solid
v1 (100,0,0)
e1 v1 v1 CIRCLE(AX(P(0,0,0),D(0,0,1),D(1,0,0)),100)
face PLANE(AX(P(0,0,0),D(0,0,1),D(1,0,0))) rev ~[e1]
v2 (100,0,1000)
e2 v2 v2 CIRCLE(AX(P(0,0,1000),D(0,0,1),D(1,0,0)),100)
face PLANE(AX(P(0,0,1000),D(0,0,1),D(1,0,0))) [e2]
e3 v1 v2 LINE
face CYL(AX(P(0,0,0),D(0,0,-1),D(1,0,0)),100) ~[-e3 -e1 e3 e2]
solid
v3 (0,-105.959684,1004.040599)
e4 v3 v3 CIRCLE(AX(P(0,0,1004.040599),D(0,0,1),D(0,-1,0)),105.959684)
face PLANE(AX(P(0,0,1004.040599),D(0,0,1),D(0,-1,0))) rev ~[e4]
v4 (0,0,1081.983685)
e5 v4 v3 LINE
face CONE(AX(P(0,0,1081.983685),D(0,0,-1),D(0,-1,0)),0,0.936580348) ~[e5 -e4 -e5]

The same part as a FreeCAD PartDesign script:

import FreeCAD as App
import Part
import Sketcher
Q = App.Units.Quantity


def add_polygon(sketch, points):
    """Adds a closed chain of lines whose ends are joined by coincident constraints."""
    first, n = sketch.GeometryCount, len(points)
    for a, b in zip(points, points[1:] + points[:1]):
        sketch.addGeometry(Part.LineSegment(App.Vector(*a, 0), App.Vector(*b, 0)), False)
    for i in range(n):
        sketch.addConstraint(Sketcher.Constraint("Coincident", first + i, 2, first + (i + 1) % n, 1))

doc = App.newDocument("Part")
body = doc.addObject("PartDesign::Body", "Body")

# Sketch on XY plane
sketch1 = body.newObject("Sketcher::SketchObject", "Sketch")
sketch1.AttachmentSupport = (doc.getObject("XY_Plane"), [""])
sketch1.MapMode = "FlatFace"
sketch1.addGeometry(Part.Circle(App.Vector(0, 0, 0), App.Vector(0, 0, 1), 100), False)
sketch1.addConstraint(Sketcher.Constraint("Coincident", 0, 3, -1, 1))
sketch1.addConstraint(Sketcher.Constraint("Diameter", 0, Q("200 mm")))
pad1 = body.newObject("PartDesign::Pad", "Pad")
pad1.Profile = sketch1
pad1.Length = 1000
body2 = doc.addObject("PartDesign::Body", "Body001")

# Sketch on YZ plane
sketch2 = body2.newObject("Sketcher::SketchObject", "Sketch001")
sketch2.AttachmentSupport = (doc.getObject("YZ_Plane001"), [""])
sketch2.MapMode = "FlatFace"
add_polygon(sketch2, [(-106, 1004), (0, 1004), (0, 1082)])  # lines 0-2
sketch2.addConstraint(Sketcher.Constraint("Horizontal", 0))
sketch2.addConstraint(Sketcher.Constraint("Vertical", 1))
sketch2.addConstraint(Sketcher.Constraint("PointOnObject", 0, 2, -2))
sketch2.addConstraint(Sketcher.Constraint("DistanceY", -1, 1, 0, 2, Q("1004.040599 mm")))
sketch2.addConstraint(Sketcher.Constraint("Distance", 2, Q("131.539269 mm")))
sketch2.addConstraint(Sketcher.Constraint("DistanceX", 0, 1, 0, 2, Q("105.959684 mm")))
revolution = body2.newObject("PartDesign::Revolution", "Revolution")
revolution.Profile = sketch2
revolution.ReferenceAxis = (sketch2, ["V_Axis"])
revolution.Angle = 360

doc.recompute()
